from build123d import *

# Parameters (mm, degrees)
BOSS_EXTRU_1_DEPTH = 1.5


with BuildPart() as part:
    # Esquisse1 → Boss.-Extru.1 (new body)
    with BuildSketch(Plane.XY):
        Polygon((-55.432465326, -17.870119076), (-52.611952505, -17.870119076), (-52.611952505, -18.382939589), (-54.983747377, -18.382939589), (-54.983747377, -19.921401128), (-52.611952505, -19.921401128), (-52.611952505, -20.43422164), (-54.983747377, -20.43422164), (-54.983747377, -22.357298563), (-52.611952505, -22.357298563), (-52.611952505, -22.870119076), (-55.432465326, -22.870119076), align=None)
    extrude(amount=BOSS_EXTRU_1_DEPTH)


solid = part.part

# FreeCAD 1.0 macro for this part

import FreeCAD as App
import Part
import Sketcher

V = App.Vector
Q = App.Units.Quantity


def add_polygon(sketch, points):
    """Adds a closed chain of lines whose ends are joined by coincident constraints."""
    first, n = sketch.GeometryCount, len(points)
    for a, b in zip(points, points[1:] + points[:1]):
        sketch.addGeometry(Part.LineSegment(App.Vector(*a, 0), App.Vector(*b, 0)), False)
    for i in range(n):
        sketch.addConstraint(Sketcher.Constraint("Coincident", first + i, 2, first + (i + 1) % n, 1))

doc = App.newDocument("Part")
body = doc.addObject("PartDesign::Body", "Body")

# Sketch on XY plane
sketch1 = doc.addObject("Sketcher::SketchObject", "Sketch")
body.addObject(sketch1)
sketch1.AttachmentSupport = (doc.XY_Plane, [""])
sketch1.MapMode = "FlatFace"
add_polygon(sketch1, [(-52.6, -17.9), (-55.4, -17.9), (-55.4, -22.9), (-52.6, -22.9), (-52.6, -22.4), (-55, -22.4), (-55, -20.4), (-52.6, -20.4), (-52.6, -19.9), (-55, -19.9), (-55, -18.4), (-52.6, -18.4)])  # lines 0-11
sketch1.addConstraint(Sketcher.Constraint("Horizontal", 0))
sketch1.addConstraint(Sketcher.Constraint("Vertical", 1))
sketch1.addConstraint(Sketcher.Constraint("Horizontal", 2))
sketch1.addConstraint(Sketcher.Constraint("Vertical", 3))
sketch1.addConstraint(Sketcher.Constraint("Horizontal", 4))
sketch1.addConstraint(Sketcher.Constraint("Vertical", 5))
sketch1.addConstraint(Sketcher.Constraint("Horizontal", 6))
sketch1.addConstraint(Sketcher.Constraint("Vertical", 7))
sketch1.addConstraint(Sketcher.Constraint("Horizontal", 8))
sketch1.addConstraint(Sketcher.Constraint("Vertical", 9))
sketch1.addConstraint(Sketcher.Constraint("Horizontal", 10))
sketch1.addConstraint(Sketcher.Constraint("Vertical", 11))
sketch1.addConstraint(Sketcher.Constraint("Vertical", 3, 2, 6, 2))
sketch1.addConstraint(Sketcher.Constraint("Vertical", 5, 2, 8, 2))
sketch1.addConstraint(Sketcher.Constraint("Vertical", 7, 2, 10, 2))
sketch1.addConstraint(Sketcher.Constraint("Equal", 3, 7))
sketch1.addConstraint(Sketcher.Constraint("Equal", 7, 11))
sketch1.addConstraint(Sketcher.Constraint("DistanceY", 1, 2, 1, 1, Q("5 mm")))
sketch1.addConstraint(Sketcher.Constraint("DistanceY", 3, 1, 3, 2, Q("0.512821 mm")))
sketch1.addConstraint(Sketcher.Constraint("DistanceY", 9, 1, 9, 2, Q("1.538462 mm")))
sketch1.addConstraint(Sketcher.Constraint("DistanceY", 3, 2, -1, 1, Q("22.357299 mm")))
sketch1.addConstraint(Sketcher.Constraint("DistanceX", 0, 2, 0, 1, Q("2.820513 mm")))
sketch1.addConstraint(Sketcher.Constraint("DistanceX", 4, 2, 4, 1, Q("2.371795 mm")))
sketch1.addConstraint(Sketcher.Constraint("DistanceX", 0, 2, -1, 1, Q("55.432465 mm")))
pad1 = doc.addObject("PartDesign::Pad", "Pad")
body.addObject(pad1)
pad1.Profile = sketch1
pad1.Length = 1.5

doc.recompute()
